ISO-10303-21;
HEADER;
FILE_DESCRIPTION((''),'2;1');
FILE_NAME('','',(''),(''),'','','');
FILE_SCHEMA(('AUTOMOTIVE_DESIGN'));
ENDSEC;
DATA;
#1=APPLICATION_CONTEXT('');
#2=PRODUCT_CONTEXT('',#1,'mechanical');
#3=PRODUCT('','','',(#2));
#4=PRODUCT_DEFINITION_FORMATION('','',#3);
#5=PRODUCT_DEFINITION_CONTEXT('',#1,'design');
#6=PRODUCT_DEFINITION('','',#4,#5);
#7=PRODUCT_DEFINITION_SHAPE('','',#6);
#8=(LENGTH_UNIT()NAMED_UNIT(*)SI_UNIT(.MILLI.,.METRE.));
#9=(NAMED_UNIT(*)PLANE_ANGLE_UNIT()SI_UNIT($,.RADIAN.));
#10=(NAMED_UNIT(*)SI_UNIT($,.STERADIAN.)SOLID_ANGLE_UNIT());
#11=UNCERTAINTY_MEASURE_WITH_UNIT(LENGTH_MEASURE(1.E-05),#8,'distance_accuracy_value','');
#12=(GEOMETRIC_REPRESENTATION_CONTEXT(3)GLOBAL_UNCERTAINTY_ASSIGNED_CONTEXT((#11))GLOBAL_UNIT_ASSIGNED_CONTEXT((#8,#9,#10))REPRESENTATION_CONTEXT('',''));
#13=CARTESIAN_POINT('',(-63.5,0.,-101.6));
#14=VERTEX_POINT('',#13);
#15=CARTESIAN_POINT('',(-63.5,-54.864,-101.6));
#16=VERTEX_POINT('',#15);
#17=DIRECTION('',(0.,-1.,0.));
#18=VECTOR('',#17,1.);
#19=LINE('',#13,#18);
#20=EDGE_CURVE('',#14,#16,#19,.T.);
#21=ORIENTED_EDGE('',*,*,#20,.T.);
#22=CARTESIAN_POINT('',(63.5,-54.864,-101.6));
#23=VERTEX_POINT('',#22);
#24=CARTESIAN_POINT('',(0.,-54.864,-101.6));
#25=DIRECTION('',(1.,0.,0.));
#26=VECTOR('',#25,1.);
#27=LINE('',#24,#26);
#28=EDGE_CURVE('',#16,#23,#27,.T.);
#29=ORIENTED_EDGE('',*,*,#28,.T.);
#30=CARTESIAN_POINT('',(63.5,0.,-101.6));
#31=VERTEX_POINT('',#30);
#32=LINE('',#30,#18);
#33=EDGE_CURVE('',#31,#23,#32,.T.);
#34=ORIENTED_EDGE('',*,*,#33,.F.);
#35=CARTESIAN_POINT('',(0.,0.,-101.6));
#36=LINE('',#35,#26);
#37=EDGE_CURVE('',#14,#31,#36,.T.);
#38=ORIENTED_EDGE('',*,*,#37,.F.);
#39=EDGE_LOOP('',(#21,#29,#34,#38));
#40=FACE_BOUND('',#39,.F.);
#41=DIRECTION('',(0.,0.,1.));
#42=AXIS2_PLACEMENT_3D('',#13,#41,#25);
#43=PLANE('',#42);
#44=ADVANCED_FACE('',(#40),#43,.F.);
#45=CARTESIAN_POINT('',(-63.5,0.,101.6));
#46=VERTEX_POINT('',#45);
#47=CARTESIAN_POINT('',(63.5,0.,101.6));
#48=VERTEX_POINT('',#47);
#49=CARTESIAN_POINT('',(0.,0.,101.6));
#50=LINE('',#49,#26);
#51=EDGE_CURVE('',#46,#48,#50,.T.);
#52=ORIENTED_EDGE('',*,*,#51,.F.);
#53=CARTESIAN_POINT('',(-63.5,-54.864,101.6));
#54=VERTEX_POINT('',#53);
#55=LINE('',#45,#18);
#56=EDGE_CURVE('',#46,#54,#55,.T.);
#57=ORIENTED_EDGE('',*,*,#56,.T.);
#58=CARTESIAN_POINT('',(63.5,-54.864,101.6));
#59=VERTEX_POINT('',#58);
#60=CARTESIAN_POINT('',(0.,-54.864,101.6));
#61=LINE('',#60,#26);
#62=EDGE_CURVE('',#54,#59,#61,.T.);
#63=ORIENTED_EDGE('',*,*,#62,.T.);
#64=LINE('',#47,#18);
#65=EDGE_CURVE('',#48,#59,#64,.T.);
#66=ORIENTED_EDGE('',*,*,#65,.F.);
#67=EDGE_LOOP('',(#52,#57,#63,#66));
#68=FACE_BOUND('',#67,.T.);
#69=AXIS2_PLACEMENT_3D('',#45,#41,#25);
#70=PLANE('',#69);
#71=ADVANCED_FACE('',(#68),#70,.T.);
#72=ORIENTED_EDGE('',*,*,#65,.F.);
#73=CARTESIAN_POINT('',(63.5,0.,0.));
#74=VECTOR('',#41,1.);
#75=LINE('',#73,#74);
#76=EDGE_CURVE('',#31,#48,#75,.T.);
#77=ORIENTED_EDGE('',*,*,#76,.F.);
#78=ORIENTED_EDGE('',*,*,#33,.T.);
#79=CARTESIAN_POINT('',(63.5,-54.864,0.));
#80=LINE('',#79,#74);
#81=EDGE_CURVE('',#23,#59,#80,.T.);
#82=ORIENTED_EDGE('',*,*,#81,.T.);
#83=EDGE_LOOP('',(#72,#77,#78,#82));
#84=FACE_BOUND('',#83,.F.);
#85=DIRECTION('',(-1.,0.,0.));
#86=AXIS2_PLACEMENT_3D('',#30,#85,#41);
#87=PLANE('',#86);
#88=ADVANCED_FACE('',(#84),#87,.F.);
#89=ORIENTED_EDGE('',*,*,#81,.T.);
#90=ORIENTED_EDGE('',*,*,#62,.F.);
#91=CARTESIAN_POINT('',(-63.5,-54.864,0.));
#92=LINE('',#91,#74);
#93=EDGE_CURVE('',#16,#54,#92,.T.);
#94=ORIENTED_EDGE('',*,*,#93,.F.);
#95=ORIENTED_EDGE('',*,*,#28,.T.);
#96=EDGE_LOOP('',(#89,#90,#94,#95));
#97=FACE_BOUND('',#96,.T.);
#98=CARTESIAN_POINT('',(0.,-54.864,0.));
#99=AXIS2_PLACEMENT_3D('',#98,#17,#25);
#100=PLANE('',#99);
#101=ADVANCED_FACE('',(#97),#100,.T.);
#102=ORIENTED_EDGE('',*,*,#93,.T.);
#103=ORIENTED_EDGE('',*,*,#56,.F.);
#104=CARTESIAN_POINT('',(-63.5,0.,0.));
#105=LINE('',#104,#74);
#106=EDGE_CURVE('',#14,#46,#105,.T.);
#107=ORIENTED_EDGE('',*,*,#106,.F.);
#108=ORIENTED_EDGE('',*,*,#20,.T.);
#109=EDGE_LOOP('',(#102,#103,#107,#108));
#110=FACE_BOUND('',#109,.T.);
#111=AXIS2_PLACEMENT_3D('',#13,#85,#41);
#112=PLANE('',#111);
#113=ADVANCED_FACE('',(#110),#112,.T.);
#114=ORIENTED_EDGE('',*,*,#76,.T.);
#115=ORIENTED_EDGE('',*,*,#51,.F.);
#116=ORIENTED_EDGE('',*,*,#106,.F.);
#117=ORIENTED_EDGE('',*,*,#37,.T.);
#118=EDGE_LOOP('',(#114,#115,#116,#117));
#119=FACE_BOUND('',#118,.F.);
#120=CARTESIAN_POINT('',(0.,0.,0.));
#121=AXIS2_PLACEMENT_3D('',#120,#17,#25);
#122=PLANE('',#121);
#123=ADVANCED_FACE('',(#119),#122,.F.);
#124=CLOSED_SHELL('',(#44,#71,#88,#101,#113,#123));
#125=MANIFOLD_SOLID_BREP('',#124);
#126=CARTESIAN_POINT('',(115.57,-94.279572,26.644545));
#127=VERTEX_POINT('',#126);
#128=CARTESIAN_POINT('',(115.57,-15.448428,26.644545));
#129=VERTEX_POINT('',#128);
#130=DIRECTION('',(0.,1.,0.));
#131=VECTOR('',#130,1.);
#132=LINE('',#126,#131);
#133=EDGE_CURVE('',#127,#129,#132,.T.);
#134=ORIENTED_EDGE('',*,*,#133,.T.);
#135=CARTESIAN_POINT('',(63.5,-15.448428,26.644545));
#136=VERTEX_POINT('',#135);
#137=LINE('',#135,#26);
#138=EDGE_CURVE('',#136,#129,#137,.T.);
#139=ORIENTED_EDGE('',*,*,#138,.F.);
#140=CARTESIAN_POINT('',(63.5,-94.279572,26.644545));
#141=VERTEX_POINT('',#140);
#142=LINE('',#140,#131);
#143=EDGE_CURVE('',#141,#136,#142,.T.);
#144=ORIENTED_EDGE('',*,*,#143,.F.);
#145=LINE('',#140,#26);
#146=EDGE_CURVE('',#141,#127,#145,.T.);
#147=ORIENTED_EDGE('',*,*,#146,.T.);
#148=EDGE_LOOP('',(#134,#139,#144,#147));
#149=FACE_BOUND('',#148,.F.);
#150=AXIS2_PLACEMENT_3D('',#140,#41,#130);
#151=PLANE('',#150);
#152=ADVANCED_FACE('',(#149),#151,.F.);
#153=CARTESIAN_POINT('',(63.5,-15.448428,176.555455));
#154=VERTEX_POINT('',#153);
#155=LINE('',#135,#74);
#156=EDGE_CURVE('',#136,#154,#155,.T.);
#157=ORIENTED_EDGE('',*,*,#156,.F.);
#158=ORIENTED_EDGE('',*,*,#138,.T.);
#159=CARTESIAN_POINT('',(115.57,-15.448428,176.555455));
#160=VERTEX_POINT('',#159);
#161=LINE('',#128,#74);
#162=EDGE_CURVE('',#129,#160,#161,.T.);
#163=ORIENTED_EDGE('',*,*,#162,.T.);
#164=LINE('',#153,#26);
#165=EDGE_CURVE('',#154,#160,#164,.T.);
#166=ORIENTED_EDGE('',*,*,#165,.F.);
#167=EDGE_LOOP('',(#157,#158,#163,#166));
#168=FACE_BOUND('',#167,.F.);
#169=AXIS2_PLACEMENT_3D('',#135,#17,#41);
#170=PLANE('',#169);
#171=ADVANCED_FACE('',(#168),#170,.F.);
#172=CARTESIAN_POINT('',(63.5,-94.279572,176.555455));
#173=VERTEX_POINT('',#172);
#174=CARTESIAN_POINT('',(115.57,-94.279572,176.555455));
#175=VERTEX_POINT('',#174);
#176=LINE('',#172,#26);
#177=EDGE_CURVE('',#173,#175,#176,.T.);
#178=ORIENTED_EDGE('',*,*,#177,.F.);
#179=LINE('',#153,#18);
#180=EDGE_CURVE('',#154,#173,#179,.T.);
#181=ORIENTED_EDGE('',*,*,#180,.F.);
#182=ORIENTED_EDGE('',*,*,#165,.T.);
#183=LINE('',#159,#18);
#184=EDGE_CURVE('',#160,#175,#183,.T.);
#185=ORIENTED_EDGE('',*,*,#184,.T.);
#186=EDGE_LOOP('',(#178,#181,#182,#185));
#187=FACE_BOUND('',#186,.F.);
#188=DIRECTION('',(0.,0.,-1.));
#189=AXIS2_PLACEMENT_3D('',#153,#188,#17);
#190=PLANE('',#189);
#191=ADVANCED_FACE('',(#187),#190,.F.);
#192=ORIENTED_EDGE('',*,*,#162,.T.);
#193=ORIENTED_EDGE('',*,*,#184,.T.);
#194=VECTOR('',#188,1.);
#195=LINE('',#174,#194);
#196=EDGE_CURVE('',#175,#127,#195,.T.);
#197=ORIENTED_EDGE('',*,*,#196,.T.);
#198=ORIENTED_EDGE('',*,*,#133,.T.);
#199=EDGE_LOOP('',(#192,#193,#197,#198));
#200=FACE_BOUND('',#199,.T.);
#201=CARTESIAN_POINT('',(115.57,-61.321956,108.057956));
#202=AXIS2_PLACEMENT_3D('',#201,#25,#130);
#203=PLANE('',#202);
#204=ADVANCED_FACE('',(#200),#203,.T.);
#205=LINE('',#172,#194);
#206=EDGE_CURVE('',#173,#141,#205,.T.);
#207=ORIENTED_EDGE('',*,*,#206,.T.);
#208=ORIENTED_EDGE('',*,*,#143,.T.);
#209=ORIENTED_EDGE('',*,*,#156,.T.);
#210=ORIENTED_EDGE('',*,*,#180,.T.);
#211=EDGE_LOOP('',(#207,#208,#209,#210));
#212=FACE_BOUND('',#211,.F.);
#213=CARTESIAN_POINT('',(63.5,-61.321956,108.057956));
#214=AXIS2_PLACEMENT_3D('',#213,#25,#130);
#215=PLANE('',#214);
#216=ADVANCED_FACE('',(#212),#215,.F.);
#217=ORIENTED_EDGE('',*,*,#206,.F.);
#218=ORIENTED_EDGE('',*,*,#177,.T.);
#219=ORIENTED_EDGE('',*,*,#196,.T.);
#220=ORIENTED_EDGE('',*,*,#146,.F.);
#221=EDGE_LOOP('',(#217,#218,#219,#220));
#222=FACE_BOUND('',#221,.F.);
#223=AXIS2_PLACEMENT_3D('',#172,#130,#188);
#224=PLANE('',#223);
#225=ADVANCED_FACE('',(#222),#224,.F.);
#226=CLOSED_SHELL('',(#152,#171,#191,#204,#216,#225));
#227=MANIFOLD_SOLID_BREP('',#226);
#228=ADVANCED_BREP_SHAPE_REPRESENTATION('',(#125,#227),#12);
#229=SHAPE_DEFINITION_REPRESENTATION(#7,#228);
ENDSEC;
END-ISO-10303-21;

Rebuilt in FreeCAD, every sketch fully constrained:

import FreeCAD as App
import Part
import Sketcher
from FreeCAD import Vector
Q = App.Units.Quantity


def add_polygon(sketch, points):
    """Adds a closed chain of lines whose ends are joined by coincident constraints."""
    first, n = sketch.GeometryCount, len(points)
    for a, b in zip(points, points[1:] + points[:1]):
        sketch.addGeometry(Part.LineSegment(App.Vector(*a, 0), App.Vector(*b, 0)), False)
    for i in range(n):
        sketch.addConstraint(Sketcher.Constraint("Coincident", first + i, 2, first + (i + 1) % n, 1))

doc = App.newDocument("Part")
params = doc.addObject("Spreadsheet::Sheet", "Params")
for row, (alias, value) in enumerate([
    ("sketch1_width", "5 in"),
    ("sketch1_height", "8 in"),
    ("pad1_length", "2.16 in"),
    ("pad2_length", "2.05 in"),
], start=1):
    params.set(f"A{row}", alias)
    params.set(f"B{row}", "=" + value)
    params.setAlias(f"B{row}", alias)

body = doc.addObject("PartDesign::Body", "Body")

# Sketch on XZ plane
sketch1 = doc.addObject("Sketcher::SketchObject", "Sketch")
body.addObject(sketch1)
sketch1.AttachmentSupport = (doc.XZ_Plane, [""])
sketch1.MapMode = "FlatFace"
add_polygon(sketch1, [(-64, 102), (-64, -102), (64, -102), (64, 102)])  # lines 0-3
sketch1.addConstraint([
    Sketcher.Constraint("Vertical", 0),
    Sketcher.Constraint("Horizontal", 1),
    Sketcher.Constraint("Vertical", 2),
    Sketcher.Constraint("Horizontal", 3),
    Sketcher.Constraint("Symmetric", 0, 2, 2, 2, -1, 1),
    Sketcher.Constraint("DistanceX", 1, 1, 1, 2, Q("5 in")),
    Sketcher.Constraint("DistanceY", 0, 2, 0, 1, Q("8 in")),
])
sketch1.setExpression("Constraints[9]", "Params.sketch1_width")
sketch1.setExpression("Constraints[10]", "Params.sketch1_height")
pad1 = doc.addObject("PartDesign::Pad", "Pad")
body.addObject(pad1)
pad1.Profile = sketch1
pad1.setExpression("Length", "Params.pad1_length")
body2 = doc.addObject("PartDesign::Body", "Body001")

# Sketch on YZ plane
sketch2 = doc.addObject("Sketcher::SketchObject", "Sketch001")
body2.addObject(sketch2)
sketch2.AttachmentSupport = (doc.getObject("YZ_Plane001"), [""])
sketch2.MapMode = "FlatFace"
sketch2.AttachmentOffset = App.Placement(Vector(0, 0, 2.5 * 25.4), App.Rotation())
add_polygon(sketch2, [(-15, 177), (-94, 177), (-94, 27), (-15, 27)])  # lines 0-3
sketch2.addConstraint([
    Sketcher.Constraint("Horizontal", 0),
    Sketcher.Constraint("Vertical", 1),
    Sketcher.Constraint("Horizontal", 2),
    Sketcher.Constraint("Vertical", 3),
    Sketcher.Constraint("DistanceY", 1, 2, 1, 1, 149.910909),
    Sketcher.Constraint("DistanceX", 0, 2, 0, 1, 78.831145),
    Sketcher.Constraint("DistanceX", 0, 2, -1, 1, 94.279572),
    Sketcher.Constraint("DistanceY", -1, 1, 0, 2, 176.555455),
])
pad2 = doc.addObject("PartDesign::Pad", "Pad001")
body2.addObject(pad2)
pad2.Profile = sketch2
pad2.setExpression("Length", "Params.pad2_length")

doc.recompute()
